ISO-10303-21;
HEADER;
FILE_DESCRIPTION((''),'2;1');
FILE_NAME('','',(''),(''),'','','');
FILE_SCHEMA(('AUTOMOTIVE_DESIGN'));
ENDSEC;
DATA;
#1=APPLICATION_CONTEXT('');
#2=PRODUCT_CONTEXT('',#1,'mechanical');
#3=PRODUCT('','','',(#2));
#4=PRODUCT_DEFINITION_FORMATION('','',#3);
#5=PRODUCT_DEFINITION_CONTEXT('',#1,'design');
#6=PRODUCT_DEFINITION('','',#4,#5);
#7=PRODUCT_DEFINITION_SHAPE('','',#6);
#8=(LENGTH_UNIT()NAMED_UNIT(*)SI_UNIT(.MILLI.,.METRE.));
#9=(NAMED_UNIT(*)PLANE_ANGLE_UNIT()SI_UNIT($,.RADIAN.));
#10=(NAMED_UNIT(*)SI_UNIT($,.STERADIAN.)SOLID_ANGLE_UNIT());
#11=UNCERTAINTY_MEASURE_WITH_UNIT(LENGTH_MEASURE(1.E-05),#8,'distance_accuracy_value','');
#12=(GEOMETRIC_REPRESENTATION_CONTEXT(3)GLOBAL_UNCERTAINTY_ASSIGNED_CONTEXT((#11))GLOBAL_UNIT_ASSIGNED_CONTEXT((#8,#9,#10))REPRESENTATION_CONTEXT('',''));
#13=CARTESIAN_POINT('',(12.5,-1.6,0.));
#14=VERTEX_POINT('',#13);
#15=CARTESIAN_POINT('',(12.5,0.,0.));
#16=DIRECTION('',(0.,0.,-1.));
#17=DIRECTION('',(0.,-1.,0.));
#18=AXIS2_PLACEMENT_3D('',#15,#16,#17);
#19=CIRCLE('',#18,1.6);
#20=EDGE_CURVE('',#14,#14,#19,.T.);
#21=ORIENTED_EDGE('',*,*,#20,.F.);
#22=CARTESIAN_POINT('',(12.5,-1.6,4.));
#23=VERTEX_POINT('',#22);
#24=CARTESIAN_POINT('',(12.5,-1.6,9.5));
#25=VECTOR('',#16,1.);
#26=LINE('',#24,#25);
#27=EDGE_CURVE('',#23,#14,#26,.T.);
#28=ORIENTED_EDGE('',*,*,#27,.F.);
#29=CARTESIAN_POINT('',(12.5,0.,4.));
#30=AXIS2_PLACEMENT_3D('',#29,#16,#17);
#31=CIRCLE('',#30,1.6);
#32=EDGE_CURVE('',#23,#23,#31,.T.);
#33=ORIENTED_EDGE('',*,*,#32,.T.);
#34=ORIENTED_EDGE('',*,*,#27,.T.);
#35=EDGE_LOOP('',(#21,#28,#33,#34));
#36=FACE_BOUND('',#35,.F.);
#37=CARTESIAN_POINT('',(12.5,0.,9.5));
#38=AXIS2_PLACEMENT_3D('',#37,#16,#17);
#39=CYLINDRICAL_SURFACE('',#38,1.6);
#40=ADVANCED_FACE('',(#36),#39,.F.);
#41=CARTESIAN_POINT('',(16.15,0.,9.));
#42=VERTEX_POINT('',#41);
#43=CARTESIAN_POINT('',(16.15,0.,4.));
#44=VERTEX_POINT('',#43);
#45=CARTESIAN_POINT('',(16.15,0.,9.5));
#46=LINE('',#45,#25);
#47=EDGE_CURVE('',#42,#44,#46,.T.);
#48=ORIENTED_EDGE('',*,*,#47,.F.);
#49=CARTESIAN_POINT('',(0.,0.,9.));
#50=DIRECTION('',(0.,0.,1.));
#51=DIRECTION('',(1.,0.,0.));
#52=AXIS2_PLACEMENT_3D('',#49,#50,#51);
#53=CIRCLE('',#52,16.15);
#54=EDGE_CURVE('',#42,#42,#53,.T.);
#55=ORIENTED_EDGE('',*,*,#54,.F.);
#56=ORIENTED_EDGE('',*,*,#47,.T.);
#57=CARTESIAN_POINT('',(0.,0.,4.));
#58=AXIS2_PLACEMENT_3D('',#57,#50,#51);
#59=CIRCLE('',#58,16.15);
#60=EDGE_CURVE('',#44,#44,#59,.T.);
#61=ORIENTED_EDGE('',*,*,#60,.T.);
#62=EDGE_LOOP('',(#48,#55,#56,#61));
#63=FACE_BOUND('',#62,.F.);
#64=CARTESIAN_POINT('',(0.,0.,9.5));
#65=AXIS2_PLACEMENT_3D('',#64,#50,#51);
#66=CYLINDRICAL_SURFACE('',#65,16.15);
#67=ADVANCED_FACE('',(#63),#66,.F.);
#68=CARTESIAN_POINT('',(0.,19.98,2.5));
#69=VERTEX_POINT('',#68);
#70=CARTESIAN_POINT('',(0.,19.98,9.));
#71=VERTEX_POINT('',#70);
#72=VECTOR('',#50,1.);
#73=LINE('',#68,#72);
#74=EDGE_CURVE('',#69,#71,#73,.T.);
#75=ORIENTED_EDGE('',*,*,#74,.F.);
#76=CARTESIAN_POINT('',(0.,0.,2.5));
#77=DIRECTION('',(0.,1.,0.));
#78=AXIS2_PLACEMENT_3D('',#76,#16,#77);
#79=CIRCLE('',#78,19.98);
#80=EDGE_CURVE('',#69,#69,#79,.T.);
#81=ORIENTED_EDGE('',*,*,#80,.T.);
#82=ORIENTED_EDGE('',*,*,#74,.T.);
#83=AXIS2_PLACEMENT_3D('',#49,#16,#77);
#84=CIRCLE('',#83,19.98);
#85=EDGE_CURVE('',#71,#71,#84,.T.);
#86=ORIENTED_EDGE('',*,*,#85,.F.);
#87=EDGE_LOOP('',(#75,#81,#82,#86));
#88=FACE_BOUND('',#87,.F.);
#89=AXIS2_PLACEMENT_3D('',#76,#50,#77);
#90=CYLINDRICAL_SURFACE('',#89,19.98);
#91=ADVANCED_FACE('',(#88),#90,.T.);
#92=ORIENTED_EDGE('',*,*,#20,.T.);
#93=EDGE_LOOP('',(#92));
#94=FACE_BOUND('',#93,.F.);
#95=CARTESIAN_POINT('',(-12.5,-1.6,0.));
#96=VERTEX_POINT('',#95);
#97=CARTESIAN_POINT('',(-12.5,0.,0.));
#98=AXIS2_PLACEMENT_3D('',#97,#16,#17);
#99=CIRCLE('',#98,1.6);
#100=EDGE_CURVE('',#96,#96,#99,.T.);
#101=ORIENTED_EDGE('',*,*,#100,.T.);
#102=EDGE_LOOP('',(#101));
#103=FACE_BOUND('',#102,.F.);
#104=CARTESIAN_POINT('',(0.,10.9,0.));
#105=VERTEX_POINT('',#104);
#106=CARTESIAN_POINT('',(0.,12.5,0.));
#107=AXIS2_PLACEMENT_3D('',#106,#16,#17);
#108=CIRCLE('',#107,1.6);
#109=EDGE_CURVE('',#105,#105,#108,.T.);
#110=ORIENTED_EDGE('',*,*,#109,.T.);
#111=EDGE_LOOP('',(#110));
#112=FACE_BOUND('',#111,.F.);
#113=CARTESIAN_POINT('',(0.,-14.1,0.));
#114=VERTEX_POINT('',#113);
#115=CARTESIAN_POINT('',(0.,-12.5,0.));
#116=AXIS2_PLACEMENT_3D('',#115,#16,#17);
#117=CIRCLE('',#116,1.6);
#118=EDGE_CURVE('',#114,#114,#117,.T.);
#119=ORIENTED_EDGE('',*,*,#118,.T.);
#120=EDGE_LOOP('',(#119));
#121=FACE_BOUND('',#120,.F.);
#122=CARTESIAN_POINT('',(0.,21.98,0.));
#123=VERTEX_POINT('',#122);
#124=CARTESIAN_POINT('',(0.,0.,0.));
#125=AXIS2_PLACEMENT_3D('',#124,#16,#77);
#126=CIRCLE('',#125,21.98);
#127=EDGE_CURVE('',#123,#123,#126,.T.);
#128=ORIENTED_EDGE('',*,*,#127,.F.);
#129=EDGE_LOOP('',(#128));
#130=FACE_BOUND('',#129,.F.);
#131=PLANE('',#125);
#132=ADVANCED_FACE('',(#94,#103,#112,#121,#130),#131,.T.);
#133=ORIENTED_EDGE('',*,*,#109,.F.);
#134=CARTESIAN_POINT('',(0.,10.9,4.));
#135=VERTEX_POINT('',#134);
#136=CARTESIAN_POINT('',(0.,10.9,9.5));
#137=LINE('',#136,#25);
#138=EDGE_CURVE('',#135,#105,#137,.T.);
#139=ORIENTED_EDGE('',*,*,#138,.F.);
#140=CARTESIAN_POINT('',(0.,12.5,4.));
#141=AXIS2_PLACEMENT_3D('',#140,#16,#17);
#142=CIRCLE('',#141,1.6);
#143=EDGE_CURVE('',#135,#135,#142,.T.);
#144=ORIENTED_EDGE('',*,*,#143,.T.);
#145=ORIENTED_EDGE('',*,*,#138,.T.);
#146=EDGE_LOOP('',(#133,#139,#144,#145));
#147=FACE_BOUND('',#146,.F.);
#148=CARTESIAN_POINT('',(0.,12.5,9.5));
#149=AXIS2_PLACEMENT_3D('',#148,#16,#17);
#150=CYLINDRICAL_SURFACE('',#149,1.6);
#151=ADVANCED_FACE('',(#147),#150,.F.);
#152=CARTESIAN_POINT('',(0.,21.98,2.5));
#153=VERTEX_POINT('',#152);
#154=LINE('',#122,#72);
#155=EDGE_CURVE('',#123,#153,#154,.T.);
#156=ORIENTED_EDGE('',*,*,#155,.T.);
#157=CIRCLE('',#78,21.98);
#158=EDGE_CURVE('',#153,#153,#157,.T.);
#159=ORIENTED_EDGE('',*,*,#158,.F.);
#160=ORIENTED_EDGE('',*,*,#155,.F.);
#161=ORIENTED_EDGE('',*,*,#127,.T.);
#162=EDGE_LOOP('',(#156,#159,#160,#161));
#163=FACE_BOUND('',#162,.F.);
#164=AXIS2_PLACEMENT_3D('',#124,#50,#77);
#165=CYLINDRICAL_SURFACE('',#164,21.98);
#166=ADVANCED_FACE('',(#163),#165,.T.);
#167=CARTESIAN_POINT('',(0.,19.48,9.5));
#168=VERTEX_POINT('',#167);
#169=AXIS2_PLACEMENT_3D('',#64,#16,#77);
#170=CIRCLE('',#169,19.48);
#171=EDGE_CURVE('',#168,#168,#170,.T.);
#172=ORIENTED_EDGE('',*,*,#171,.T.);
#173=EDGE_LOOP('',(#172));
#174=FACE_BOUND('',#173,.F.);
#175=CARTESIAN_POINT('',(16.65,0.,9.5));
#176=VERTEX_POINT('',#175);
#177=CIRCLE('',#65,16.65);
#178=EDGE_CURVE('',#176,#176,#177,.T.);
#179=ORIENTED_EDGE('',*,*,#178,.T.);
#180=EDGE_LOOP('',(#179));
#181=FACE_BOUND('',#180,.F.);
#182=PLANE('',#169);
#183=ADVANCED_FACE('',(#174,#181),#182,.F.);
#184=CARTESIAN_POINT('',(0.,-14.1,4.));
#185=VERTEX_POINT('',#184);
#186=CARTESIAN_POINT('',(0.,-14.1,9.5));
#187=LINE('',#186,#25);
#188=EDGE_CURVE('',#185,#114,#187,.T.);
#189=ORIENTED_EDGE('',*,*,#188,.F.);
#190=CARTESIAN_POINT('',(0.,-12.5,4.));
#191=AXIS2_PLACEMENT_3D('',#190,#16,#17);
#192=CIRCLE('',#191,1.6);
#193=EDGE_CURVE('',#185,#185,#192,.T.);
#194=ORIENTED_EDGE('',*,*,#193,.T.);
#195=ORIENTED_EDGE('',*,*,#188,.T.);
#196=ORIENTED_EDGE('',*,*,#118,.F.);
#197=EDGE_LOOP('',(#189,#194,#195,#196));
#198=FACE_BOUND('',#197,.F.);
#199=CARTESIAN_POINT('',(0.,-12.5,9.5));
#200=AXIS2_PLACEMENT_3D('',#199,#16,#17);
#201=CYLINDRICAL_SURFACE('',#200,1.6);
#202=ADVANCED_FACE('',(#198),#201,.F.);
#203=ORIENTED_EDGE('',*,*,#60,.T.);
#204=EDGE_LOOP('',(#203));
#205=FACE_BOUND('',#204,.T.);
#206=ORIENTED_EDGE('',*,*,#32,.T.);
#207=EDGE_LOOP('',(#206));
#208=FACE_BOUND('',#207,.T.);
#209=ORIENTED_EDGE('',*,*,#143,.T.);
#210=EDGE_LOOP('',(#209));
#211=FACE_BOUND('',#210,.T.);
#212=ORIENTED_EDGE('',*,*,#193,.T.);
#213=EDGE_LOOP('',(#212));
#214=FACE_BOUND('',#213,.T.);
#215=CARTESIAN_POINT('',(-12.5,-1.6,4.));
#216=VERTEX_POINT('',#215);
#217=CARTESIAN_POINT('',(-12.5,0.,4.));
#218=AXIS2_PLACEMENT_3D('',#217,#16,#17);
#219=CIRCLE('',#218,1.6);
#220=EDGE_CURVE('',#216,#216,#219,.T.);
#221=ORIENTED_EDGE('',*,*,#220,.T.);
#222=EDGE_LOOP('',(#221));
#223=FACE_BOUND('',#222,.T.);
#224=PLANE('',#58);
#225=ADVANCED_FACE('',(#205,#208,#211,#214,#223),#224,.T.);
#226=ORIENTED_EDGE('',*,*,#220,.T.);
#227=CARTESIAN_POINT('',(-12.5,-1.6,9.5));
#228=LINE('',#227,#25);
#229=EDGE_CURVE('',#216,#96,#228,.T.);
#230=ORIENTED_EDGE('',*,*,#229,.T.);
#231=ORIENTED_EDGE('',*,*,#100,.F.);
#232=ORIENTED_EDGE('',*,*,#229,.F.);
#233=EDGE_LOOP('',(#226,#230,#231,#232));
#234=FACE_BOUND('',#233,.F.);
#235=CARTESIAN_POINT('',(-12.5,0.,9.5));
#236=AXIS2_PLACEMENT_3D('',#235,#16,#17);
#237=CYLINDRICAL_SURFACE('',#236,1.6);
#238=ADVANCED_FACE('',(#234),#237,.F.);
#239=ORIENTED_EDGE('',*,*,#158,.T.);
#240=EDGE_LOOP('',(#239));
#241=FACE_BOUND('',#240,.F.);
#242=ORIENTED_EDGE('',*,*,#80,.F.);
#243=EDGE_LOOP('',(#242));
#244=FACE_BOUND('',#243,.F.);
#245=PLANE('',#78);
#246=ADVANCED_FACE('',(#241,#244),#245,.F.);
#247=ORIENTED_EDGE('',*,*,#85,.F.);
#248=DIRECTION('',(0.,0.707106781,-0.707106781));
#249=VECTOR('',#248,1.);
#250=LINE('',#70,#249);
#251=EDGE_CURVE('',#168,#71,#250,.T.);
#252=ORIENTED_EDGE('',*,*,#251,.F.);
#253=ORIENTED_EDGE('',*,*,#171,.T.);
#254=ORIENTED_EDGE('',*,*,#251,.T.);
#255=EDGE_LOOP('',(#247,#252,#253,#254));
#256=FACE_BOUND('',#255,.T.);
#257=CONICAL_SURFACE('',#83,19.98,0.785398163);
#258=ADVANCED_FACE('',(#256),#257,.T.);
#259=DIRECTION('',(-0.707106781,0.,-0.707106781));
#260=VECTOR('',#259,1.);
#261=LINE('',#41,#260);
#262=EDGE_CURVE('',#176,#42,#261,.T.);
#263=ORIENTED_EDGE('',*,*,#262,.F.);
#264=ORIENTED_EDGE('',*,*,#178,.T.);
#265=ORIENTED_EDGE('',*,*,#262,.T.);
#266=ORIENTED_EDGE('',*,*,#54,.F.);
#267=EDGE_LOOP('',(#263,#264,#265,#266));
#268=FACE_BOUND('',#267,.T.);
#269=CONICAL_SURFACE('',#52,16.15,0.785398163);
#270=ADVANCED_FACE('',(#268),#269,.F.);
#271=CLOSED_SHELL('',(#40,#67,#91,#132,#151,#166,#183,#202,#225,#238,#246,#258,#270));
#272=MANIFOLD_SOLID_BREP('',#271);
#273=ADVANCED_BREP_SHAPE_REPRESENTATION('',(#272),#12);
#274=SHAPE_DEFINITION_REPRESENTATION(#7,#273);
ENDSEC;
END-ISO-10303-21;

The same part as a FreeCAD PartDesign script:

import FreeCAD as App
import Part
import Sketcher

V = App.Vector
Q = App.Units.Quantity


def edges_at(feature, points):
    """Names of the edges that pass closest to the given points."""
    edges = feature.Shape.Edges
    near = lambda p: min(range(len(edges)), key=lambda i: edges[i].distToShape(Part.Vertex(*p))[0])
    return sorted({f"Edge{near(p) + 1}" for p in points})


def add_polygon(sketch, points):
    """Adds a closed chain of lines whose ends are joined by coincident constraints."""
    first, n = sketch.GeometryCount, len(points)
    for a, b in zip(points, points[1:] + points[:1]):
        sketch.addGeometry(Part.LineSegment(App.Vector(*a, 0), App.Vector(*b, 0)), False)
    for i in range(n):
        sketch.addConstraint(Sketcher.Constraint("Coincident", first + i, 2, first + (i + 1) % n, 1))

doc = App.newDocument("Part")
params = doc.addObject("Spreadsheet::Sheet", "Params")
for row, (alias, value) in enumerate([
    ("sketch1_width", "2 mm"),
    ("sketch1_height", "7 mm"),
    ("sketch1_height2", "2.5 mm"),
    ("sketch1_width2", "19.98 mm"),
    ("revolution_angle", "360 deg"),
    ("chamfer_size", "0.5 mm"),
    ("sketch2_diameter", "3.2 mm"),
    ("hole_diameter", "3.2 mm"),
    ("sketch3_diameter", "32.3 mm"),
    ("pocket1_length", "5.5 mm"),
    ("chamfer2_size", "0.5 mm"),
], start=1):
    params.set(f"A{row}", alias)
    params.set(f"B{row}", "=" + value)
    params.setAlias(f"B{row}", alias)

body = doc.addObject("PartDesign::Body", "Body")

# Sketch on YZ plane
sketch1 = body.newObject("Sketcher::SketchObject", "Sketch")
sketch1.AttachmentSupport = (doc.getObject("YZ_Plane"), [""])
sketch1.MapMode = "FlatFace"
add_polygon(sketch1, [(0, 0), (22, 0), (22, 2.5), (20, 2.5), (20, 9.5), (0, 9.5)])  # lines 0-5
sketch1.addConstraint(Sketcher.Constraint("Horizontal", 0))
sketch1.addConstraint(Sketcher.Constraint("Vertical", 1))
sketch1.addConstraint(Sketcher.Constraint("Horizontal", 2))
sketch1.addConstraint(Sketcher.Constraint("Vertical", 3))
sketch1.addConstraint(Sketcher.Constraint("Horizontal", 4))
sketch1.addConstraint(Sketcher.Constraint("Vertical", 5))
sketch1.addConstraint(Sketcher.Constraint("Coincident", 5, 2, -1, 1))
sketch1.addConstraint(Sketcher.Constraint("DistanceX", 2, 2, 2, 1, Q("2 mm")))
sketch1.addConstraint(Sketcher.Constraint("DistanceY", 3, 1, 3, 2, Q("7 mm")))
sketch1.addConstraint(Sketcher.Constraint("DistanceY", 1, 1, 1, 2, Q("2.5 mm")))
sketch1.addConstraint(Sketcher.Constraint("DistanceX", 4, 2, 4, 1, Q("19.98 mm")))
sketch1.setExpression("Constraints[13]", "Params.sketch1_width")
sketch1.setExpression("Constraints[14]", "Params.sketch1_height")
sketch1.setExpression("Constraints[15]", "Params.sketch1_height2")
sketch1.setExpression("Constraints[16]", "Params.sketch1_width2")
revolution = body.newObject("PartDesign::Revolution", "Revolution")
revolution.Profile = sketch1
revolution.ReferenceAxis = (sketch1, ["V_Axis"])
revolution.setExpression("Angle", "Params.revolution_angle")
doc.recompute()

chamfer = body.newObject("PartDesign::Chamfer", "Chamfer")
chamfer.Base = (revolution, edges_at(revolution, [(0, -19.98, 9.5)]))
chamfer.setExpression("Size", "Params.chamfer_size")

# Sketch on XY plane
sketch2 = body.newObject("Sketcher::SketchObject", "Sketch001")
sketch2.AttachmentSupport = (doc.getObject("XY_Plane"), [""])
sketch2.MapMode = "FlatFace"
sketch2.AttachmentOffset = App.Placement(V(0, 0, 9.5), App.Rotation())
sketch2.addGeometry(Part.Circle(V(0, 12.5, 0), V(0, 0, 1), 1.6), False)
sketch2.addGeometry(Part.Circle(V(-12.5, 0, 0), V(0, 0, 1), 1.6), False)
sketch2.addGeometry(Part.Circle(V(0, -12.5, 0), V(0, 0, 1), 1.6), False)
sketch2.addGeometry(Part.Circle(V(12.5, 0, 0), V(0, 0, 1), 1.6), False)
sketch2.addConstraint(Sketcher.Constraint("Equal", 0, 1))
sketch2.addConstraint(Sketcher.Constraint("Equal", 1, 2))
sketch2.addConstraint(Sketcher.Constraint("Equal", 2, 3))
sketch2.addConstraint(Sketcher.Constraint("Symmetric", 0, 3, 2, 3, -1, 1))
sketch2.addConstraint(Sketcher.Constraint("Symmetric", 1, 3, 3, 3, -1, 1))
sketch2.addConstraint(Sketcher.Constraint("PointOnObject", 0, 3, -2))
sketch2.addConstraint(Sketcher.Constraint("PointOnObject", 1, 3, -1))
sketch2.addConstraint(Sketcher.Constraint("Diameter", 0, Q("3.2 mm")))
sketch2.addConstraint(Sketcher.Constraint("DistanceY", 2, 3, 0, 3, Q("25 mm")))
sketch2.addConstraint(Sketcher.Constraint("DistanceX", 1, 3, 3, 3, Q("25 mm")))
sketch2.setExpression("Constraints[7]", "Params.sketch2_diameter")
doc.recompute()
hole = body.newObject("PartDesign::Hole", "Hole")
hole.Profile = sketch2
hole.ThreadType = "None"
hole.setExpression("Diameter", "Params.hole_diameter")
hole.DepthType = "ThroughAll"

# Sketch on XY plane
sketch3 = body.newObject("Sketcher::SketchObject", "Sketch002")
sketch3.AttachmentSupport = (doc.getObject("XY_Plane"), [""])
sketch3.MapMode = "FlatFace"
sketch3.AttachmentOffset = App.Placement(V(0, 0, 9.5), App.Rotation())
sketch3.addGeometry(Part.Circle(V(0, 0, 0), V(0, 0, 1), 16), False)
sketch3.addConstraint(Sketcher.Constraint("Coincident", 0, 3, -1, 1))
sketch3.addConstraint(Sketcher.Constraint("Diameter", 0, Q("32.3 mm")))
sketch3.setExpression("Constraints[1]", "Params.sketch3_diameter")
pocket1 = body.newObject("PartDesign::Pocket", "Pocket")
pocket1.Profile = sketch3
pocket1.setExpression("Length", "Params.pocket1_length")
doc.recompute()

chamfer2 = body.newObject("PartDesign::Chamfer", "Chamfer001")
chamfer2.Base = (pocket1, edges_at(pocket1, [(-16.15, 0, 9.5)]))
chamfer2.setExpression("Size", "Params.chamfer2_size")

doc.recompute()
